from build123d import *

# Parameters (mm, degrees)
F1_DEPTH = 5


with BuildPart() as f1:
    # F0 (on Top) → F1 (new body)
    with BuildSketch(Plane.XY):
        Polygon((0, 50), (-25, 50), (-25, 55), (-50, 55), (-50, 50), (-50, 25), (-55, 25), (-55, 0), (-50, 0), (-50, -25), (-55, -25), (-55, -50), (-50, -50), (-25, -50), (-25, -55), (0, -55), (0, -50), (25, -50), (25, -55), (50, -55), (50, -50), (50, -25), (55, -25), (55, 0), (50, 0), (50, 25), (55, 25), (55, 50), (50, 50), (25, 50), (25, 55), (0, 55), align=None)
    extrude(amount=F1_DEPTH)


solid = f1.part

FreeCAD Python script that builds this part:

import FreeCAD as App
import Part
import Sketcher

V = App.Vector


def add_polygon(sketch, points):
    """Adds a closed chain of lines whose ends are joined by coincident constraints."""
    first, n = sketch.GeometryCount, len(points)
    for a, b in zip(points, points[1:] + points[:1]):
        sketch.addGeometry(Part.LineSegment(App.Vector(*a, 0), App.Vector(*b, 0)), False)
    for i in range(n):
        sketch.addConstraint(Sketcher.Constraint("Coincident", first + i, 2, first + (i + 1) % n, 1))

doc = App.newDocument("Part")
body = doc.addObject("PartDesign::Body", "Body")

sketch1 = doc.addObject("Sketcher::SketchObject", "Sketch")
body.addObject(sketch1)
sketch1.AttachmentSupport = (doc.XY_Plane, [""])
sketch1.MapMode = "FlatFace"
add_polygon(sketch1, [(0, 50), (-25, 50), (-25, 55), (-50, 55), (-50, 25), (-55, 25), (-55, 0), (-50, 0), (-50, -25), (-55, -25), (-55, -50), (-25, -50), (-25, -55), (0, -55), (0, -50), (25, -50), (25, -55), (50, -55), (50, -25), (55, -25), (55, 0), (50, 0), (50, 25), (55, 25), (55, 50), (25, 50), (25, 55), (0, 55)])
sketch1.addConstraint([
    Sketcher.Constraint("Horizontal", 0),
    Sketcher.Constraint("Vertical", 1),
    Sketcher.Constraint("Horizontal", 2),
    Sketcher.Constraint("Vertical", 3),
    Sketcher.Constraint("Horizontal", 4),
    Sketcher.Constraint("Vertical", 5),
    Sketcher.Constraint("Horizontal", 6),
    Sketcher.Constraint("Vertical", 7),
    Sketcher.Constraint("Horizontal", 8),
    Sketcher.Constraint("Vertical", 9),
    Sketcher.Constraint("Horizontal", 10),
    Sketcher.Constraint("Vertical", 11),
    Sketcher.Constraint("Horizontal", 12),
    Sketcher.Constraint("Vertical", 13),
    Sketcher.Constraint("Horizontal", 14),
    Sketcher.Constraint("Vertical", 15),
    Sketcher.Constraint("Horizontal", 16),
    Sketcher.Constraint("Vertical", 17),
    Sketcher.Constraint("Horizontal", 18),
    Sketcher.Constraint("Vertical", 19),
    Sketcher.Constraint("Horizontal", 20),
    Sketcher.Constraint("Vertical", 21),
    Sketcher.Constraint("Horizontal", 22),
    Sketcher.Constraint("Vertical", 23),
    Sketcher.Constraint("Horizontal", 24),
    Sketcher.Constraint("Vertical", 25),
    Sketcher.Constraint("Horizontal", 26),
    Sketcher.Constraint("Vertical", 27),
    Sketcher.Constraint("Symmetric", 0, 2, 14, 2, -1, 1),
    Sketcher.Constraint("Symmetric", 2, 2, 16, 2, -1, 1),
    Sketcher.Constraint("Symmetric", 4, 2, 18, 2, -1, 1),
    Sketcher.Constraint("Symmetric", 6, 2, 20, 2, -1, 1),
    Sketcher.Constraint("Symmetric", 8, 2, 22, 2, -1, 1),
    Sketcher.Constraint("Symmetric", 10, 2, 24, 2, -1, 1),
    Sketcher.Constraint("Symmetric", 12, 2, 26, 2, -1, 1),
    Sketcher.Constraint("Symmetric", 10, 2, 14, 2, -2),
    Sketcher.Constraint("Symmetric", 7, 2, 17, 2, -2),
    Sketcher.Constraint("PointOnObject", 5, 2, -1),
    Sketcher.Constraint("PointOnObject", 12, 2, -2),
    Sketcher.Constraint("Horizontal", 12, 2, 15, 2),
    Sketcher.Constraint("Vertical", 5, 2, 8, 2),
    Sketcher.Constraint("Equal", 0, 2),
    Sketcher.Constraint("Equal", 22, 1),
    Sketcher.Constraint("Equal", 24, 3),
    Sketcher.Constraint("Equal", 26, 5),
    Sketcher.Constraint("DistanceX", 0, 2, 0, 1, 25.0),
    Sketcher.Constraint("DistanceX", 4, 2, 4, 1, 5.0),
])
pad1 = doc.addObject("PartDesign::Pad", "Pad")
body.addObject(pad1)
pad1.Profile = sketch1
pad1.Length = 5

doc.recompute()
